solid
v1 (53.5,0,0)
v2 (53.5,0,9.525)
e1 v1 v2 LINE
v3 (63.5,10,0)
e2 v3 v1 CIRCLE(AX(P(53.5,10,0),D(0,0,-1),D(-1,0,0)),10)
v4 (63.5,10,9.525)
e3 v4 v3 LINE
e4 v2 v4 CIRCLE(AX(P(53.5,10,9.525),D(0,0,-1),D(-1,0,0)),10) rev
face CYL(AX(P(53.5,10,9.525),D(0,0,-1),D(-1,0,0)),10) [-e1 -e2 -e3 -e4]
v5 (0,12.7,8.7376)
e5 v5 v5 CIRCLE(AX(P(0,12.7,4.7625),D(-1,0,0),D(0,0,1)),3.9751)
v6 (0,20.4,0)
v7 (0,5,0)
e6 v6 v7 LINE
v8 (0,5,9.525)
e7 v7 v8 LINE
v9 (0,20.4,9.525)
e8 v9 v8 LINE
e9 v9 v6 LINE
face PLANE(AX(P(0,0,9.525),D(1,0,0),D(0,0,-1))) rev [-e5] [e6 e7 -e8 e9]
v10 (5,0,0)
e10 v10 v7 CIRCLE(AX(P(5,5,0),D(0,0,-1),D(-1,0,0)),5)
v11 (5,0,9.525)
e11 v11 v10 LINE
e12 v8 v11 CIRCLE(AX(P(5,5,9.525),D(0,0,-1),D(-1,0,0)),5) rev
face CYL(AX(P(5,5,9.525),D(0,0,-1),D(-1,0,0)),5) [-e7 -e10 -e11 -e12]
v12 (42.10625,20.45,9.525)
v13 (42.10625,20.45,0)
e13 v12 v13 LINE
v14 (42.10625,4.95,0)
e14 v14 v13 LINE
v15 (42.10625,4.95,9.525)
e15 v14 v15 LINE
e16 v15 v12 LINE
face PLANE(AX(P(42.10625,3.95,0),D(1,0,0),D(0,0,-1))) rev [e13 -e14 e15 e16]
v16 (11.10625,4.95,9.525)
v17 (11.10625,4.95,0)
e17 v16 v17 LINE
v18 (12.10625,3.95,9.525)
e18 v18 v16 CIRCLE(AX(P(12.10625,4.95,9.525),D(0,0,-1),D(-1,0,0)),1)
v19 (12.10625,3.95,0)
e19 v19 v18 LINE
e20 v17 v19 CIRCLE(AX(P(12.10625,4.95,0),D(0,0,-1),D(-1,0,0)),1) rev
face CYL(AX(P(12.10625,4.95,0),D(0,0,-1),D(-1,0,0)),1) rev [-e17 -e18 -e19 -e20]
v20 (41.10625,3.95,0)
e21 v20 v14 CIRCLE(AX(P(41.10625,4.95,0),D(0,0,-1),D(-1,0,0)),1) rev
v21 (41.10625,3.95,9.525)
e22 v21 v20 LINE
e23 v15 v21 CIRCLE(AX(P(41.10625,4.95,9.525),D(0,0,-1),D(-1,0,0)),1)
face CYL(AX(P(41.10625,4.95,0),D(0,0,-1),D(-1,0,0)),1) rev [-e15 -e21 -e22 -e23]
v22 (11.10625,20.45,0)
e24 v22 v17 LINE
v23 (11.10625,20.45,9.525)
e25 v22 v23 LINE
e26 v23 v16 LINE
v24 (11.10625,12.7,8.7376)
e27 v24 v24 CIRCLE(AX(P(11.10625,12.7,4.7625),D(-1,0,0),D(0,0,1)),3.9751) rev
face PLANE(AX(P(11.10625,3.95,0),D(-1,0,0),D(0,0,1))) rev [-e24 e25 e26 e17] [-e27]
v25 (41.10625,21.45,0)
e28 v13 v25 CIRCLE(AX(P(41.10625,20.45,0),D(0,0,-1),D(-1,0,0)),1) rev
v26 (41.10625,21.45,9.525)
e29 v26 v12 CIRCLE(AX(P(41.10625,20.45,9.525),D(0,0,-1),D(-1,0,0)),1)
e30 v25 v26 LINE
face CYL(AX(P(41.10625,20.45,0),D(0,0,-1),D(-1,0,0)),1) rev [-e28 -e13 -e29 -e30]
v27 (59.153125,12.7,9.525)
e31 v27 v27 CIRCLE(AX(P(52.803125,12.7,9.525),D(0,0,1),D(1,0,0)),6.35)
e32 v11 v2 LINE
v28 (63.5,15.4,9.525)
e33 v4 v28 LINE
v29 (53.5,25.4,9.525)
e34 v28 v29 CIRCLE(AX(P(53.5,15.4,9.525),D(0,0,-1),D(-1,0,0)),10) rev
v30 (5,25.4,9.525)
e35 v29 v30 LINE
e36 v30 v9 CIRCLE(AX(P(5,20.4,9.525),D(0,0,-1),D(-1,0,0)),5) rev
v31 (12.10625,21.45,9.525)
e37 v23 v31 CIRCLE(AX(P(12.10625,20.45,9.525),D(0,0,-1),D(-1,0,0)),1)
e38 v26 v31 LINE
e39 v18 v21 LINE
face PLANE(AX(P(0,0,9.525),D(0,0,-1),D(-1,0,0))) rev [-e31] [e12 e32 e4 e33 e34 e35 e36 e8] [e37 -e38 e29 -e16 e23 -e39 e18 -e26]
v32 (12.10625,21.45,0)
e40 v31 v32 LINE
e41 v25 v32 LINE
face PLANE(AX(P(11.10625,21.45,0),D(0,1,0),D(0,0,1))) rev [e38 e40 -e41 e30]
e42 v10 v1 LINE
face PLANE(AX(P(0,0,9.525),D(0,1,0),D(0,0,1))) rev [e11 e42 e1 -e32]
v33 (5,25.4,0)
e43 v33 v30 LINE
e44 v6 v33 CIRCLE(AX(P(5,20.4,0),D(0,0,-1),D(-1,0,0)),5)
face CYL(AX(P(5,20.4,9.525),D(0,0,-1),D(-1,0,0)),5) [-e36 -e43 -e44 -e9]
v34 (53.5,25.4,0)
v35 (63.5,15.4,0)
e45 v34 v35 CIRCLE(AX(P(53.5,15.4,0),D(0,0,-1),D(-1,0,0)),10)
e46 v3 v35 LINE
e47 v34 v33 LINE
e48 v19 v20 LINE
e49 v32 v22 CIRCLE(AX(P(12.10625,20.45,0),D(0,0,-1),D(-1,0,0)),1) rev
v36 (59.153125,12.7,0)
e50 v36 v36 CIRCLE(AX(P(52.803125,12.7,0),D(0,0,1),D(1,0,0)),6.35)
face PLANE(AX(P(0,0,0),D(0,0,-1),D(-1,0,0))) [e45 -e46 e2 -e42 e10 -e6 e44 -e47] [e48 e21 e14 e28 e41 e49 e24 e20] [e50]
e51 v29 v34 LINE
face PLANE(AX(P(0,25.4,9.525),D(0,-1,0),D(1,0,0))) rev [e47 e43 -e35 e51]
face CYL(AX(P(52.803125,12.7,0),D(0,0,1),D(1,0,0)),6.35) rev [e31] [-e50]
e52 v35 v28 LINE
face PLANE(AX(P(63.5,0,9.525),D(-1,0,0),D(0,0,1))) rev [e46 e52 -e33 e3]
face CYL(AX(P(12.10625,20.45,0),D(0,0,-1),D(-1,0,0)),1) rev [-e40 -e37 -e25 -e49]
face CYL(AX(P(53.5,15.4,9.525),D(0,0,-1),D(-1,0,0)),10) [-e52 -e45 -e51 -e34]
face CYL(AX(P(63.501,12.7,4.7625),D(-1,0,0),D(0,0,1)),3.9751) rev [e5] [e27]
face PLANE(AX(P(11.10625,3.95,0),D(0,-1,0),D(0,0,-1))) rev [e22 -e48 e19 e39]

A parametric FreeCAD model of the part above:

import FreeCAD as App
import Part
import Sketcher

V = App.Vector


def edges_at(feature, points):
    """Names of the edges that pass closest to the given points."""
    edges = feature.Shape.Edges
    near = lambda p: min(range(len(edges)), key=lambda i: edges[i].distToShape(Part.Vertex(*p))[0])
    return sorted({f"Edge{near(p) + 1}" for p in points})

doc = App.newDocument("Part")
body = doc.addObject("PartDesign::Body", "Body")

sketch1 = body.newObject("Sketcher::SketchObject", "Sketch")
sketch1.AttachmentSupport = (doc.getObject("XY_Plane"), [""])
sketch1.MapMode = "FlatFace"
sketch1.addGeometry([
    Part.LineSegment(V(0, 25, 0), V(0, 0, 0)),
    Part.LineSegment(V(0, 0, 0), V(64, 0, 0)),
    Part.LineSegment(V(64, 0, 0), V(64, 25, 0)),
    Part.LineSegment(V(64, 25, 0), V(0, 25, 0)),
], False)
sketch1.addConstraint([
    Sketcher.Constraint("Coincident", 0, 2, 1, 1),
    Sketcher.Constraint("Coincident", 1, 2, 2, 1),
    Sketcher.Constraint("Coincident", 2, 2, 3, 1),
    Sketcher.Constraint("Coincident", 3, 2, 0, 1),
    Sketcher.Constraint("Vertical", 0),
    Sketcher.Constraint("Horizontal", 1),
    Sketcher.Constraint("Vertical", 2),
    Sketcher.Constraint("Horizontal", 3),
    Sketcher.Constraint("Coincident", 0, 2, -1, 1),
    Sketcher.Constraint("DistanceX", 1, 1, 1, 2, 63.5),
    Sketcher.Constraint("DistanceY", 0, 2, 0, 1, 25.4),
])
pad1 = body.newObject("PartDesign::Pad", "Pad")
pad1.Profile = sketch1
pad1.Length = 9.525

sketch2 = body.newObject("Sketcher::SketchObject", "Sketch001")
sketch2.AttachmentSupport = (doc.getObject("XY_Plane"), [""])
sketch2.MapMode = "FlatFace"
sketch2.AttachmentOffset = App.Placement(V(0, 0, 9.525), App.Rotation())
sketch2.addGeometry([
    Part.Circle(V(53, 13, 0), V(0, 0, 1), 6),
    Part.LineSegment(V(11, 21, 0), V(11, 4, 0)),
    Part.LineSegment(V(11, 4, 0), V(42, 4, 0)),
    Part.LineSegment(V(42, 4, 0), V(42, 21, 0)),
    Part.LineSegment(V(42, 21, 0), V(11, 21, 0)),
], False)
sketch2.addConstraint([
    Sketcher.Constraint("Coincident", 1, 2, 2, 1),
    Sketcher.Constraint("Coincident", 2, 2, 3, 1),
    Sketcher.Constraint("Coincident", 3, 2, 4, 1),
    Sketcher.Constraint("Coincident", 4, 2, 1, 1),
    Sketcher.Constraint("Vertical", 1),
    Sketcher.Constraint("Horizontal", 2),
    Sketcher.Constraint("Vertical", 3),
    Sketcher.Constraint("Horizontal", 4),
    Sketcher.Constraint("Diameter", 0, 12.7),
    Sketcher.Constraint("DistanceX", 2, 1, 2, 2, 31.0),
    Sketcher.Constraint("DistanceY", 1, 2, 1, 1, 17.5),
    Sketcher.Constraint("DistanceY", -1, 1, 0, 3, 12.7),
    Sketcher.Constraint("DistanceY", -1, 1, 1, 2, 3.95),
    Sketcher.Constraint("DistanceX", -1, 1, 1, 2, 11.10625),
    Sketcher.Constraint("DistanceX", -1, 1, 0, 3, 52.803125),
])
pocket1 = body.newObject("PartDesign::Pocket", "Pocket")
pocket1.Profile = sketch2
pocket1.Type = "ThroughAll"

sketch3 = body.newObject("Sketcher::SketchObject", "Sketch002")
sketch3.AttachmentSupport = (doc.getObject("YZ_Plane"), [""])
sketch3.MapMode = "FlatFace"
sketch3.addGeometry(Part.Circle(V(12.7, 4.8, 0), V(0, 0, 1), 4), False)
sketch3.addConstraint([
    Sketcher.Constraint("Diameter", 0, 7.9502),
    Sketcher.Constraint("DistanceX", -1, 1, 0, 3, 12.7),
    Sketcher.Constraint("DistanceY", -1, 1, 0, 3, 4.7625),
])
pocket2 = body.newObject("PartDesign::Pocket", "Pocket001")
pocket2.Profile = sketch3
pocket2.Type = "UpToFirst"
pocket2.Reversed = True
doc.recompute()

fillet = body.newObject("PartDesign::Fillet", "Fillet")
fillet.Base = (pocket2, edges_at(pocket2, [(63.5, 25.4, 4.763), (63.5, 0, 4.763)]))
fillet.Radius = 10
doc.recompute()

fillet2 = body.newObject("PartDesign::Fillet", "Fillet001")
fillet2.Base = (fillet, edges_at(fillet, [(0, 25.4, 4.763), (0, 0, 4.763)]))
fillet2.Radius = 5
doc.recompute()

fillet3 = body.newObject("PartDesign::Fillet", "Fillet002")
fillet3.Base = (fillet2, edges_at(fillet2, [
    (42.106, 21.45, 4.763),
    (42.106, 3.95, 4.763),
    (11.106, 3.95, 4.763),
    (11.106, 21.45, 4.763),
]))
fillet3.Radius = 1

doc.recompute()
